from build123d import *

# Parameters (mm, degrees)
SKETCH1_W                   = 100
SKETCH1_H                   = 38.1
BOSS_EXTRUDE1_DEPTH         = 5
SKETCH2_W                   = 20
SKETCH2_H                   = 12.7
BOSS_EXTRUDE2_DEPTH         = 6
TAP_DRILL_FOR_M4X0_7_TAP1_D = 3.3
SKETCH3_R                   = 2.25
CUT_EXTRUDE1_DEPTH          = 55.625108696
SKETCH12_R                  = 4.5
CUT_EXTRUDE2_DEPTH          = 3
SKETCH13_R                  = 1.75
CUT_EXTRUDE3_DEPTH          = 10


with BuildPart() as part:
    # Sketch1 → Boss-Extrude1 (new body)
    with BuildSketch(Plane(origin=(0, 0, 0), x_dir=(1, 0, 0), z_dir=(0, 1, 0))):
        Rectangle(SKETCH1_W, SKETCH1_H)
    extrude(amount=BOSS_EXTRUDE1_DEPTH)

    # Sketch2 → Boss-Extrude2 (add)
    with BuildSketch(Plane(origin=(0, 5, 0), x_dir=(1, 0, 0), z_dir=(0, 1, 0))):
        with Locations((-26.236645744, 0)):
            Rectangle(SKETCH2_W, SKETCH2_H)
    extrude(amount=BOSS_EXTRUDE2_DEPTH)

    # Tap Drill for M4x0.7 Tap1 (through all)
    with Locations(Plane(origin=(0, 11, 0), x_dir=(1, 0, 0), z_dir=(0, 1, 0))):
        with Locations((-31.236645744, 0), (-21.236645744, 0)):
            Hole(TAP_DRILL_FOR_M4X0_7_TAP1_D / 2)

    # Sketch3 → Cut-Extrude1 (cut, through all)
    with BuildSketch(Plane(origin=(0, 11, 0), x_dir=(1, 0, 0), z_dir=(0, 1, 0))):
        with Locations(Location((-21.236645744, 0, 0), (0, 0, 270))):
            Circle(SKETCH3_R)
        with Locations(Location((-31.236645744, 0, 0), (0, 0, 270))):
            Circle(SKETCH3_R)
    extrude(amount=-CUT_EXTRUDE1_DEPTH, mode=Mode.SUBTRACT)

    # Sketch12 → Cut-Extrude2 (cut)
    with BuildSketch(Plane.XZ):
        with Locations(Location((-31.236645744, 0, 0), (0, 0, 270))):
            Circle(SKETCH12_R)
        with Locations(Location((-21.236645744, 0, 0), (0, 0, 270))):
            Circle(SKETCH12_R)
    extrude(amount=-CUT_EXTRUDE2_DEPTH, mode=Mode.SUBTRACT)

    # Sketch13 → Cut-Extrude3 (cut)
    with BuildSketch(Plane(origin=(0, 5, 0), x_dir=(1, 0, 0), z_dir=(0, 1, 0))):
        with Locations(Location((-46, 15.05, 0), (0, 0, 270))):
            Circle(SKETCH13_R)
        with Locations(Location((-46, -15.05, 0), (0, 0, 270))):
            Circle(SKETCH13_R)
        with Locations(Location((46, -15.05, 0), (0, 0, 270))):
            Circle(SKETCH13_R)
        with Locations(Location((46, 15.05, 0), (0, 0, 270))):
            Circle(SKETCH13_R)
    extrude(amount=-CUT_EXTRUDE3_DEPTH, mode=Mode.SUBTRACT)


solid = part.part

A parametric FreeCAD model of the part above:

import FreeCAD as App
import Part
import Sketcher

V = App.Vector

doc = App.newDocument("Part")
body = doc.addObject("PartDesign::Body", "Body")

# Sketch on XZ plane
sketch1 = body.newObject("Sketcher::SketchObject", "Sketch")
sketch1.AttachmentSupport = (doc.getObject("XZ_Plane"), [""])
sketch1.MapMode = "FlatFace"
sketch1.addGeometry(Part.LineSegment(V(-50, -19, 0), V(-50, 19, 0)), False)
sketch1.addGeometry(Part.LineSegment(V(-50, 19, 0), V(50, 19, 0)), False)
sketch1.addGeometry(Part.LineSegment(V(50, 19, 0), V(50, -19, 0)), False)
sketch1.addGeometry(Part.LineSegment(V(50, -19, 0), V(-50, -19, 0)), False)
sketch1.addConstraint(Sketcher.Constraint("Coincident", 0, 2, 1, 1))
sketch1.addConstraint(Sketcher.Constraint("Coincident", 1, 2, 2, 1))
sketch1.addConstraint(Sketcher.Constraint("Coincident", 2, 2, 3, 1))
sketch1.addConstraint(Sketcher.Constraint("Coincident", 3, 2, 0, 1))
sketch1.addConstraint(Sketcher.Constraint("Vertical", 0))
sketch1.addConstraint(Sketcher.Constraint("Horizontal", 1))
sketch1.addConstraint(Sketcher.Constraint("Vertical", 2))
sketch1.addConstraint(Sketcher.Constraint("Horizontal", 3))
sketch1.addConstraint(Sketcher.Constraint("Symmetric", 0, 2, 2, 2, -1, 1))
sketch1.addConstraint(Sketcher.Constraint("DistanceX", 1, 1, 1, 2, 100.0))
sketch1.addConstraint(Sketcher.Constraint("DistanceY", 0, 1, 0, 2, 38.1))
pad1 = body.newObject("PartDesign::Pad", "Pad")
pad1.Profile = sketch1
pad1.Length = 5
pad1.Reversed = True

# Sketch on XZ plane
sketch2 = body.newObject("Sketcher::SketchObject", "Sketch001")
sketch2.AttachmentSupport = (doc.getObject("XZ_Plane"), [""])
sketch2.MapMode = "FlatFace"
sketch2.AttachmentOffset = App.Placement(V(0, 0, -5), App.Rotation())
sketch2.addGeometry(Part.LineSegment(V(-36, -6, 0), V(-36, 6, 0)), False)
sketch2.addGeometry(Part.LineSegment(V(-36, 6, 0), V(-16, 6, 0)), False)
sketch2.addGeometry(Part.LineSegment(V(-16, 6, 0), V(-16, -6, 0)), False)
sketch2.addGeometry(Part.LineSegment(V(-16, -6, 0), V(-36, -6, 0)), False)
sketch2.addConstraint(Sketcher.Constraint("Coincident", 0, 2, 1, 1))
sketch2.addConstraint(Sketcher.Constraint("Coincident", 1, 2, 2, 1))
sketch2.addConstraint(Sketcher.Constraint("Coincident", 2, 2, 3, 1))
sketch2.addConstraint(Sketcher.Constraint("Coincident", 3, 2, 0, 1))
sketch2.addConstraint(Sketcher.Constraint("Vertical", 0))
sketch2.addConstraint(Sketcher.Constraint("Horizontal", 1))
sketch2.addConstraint(Sketcher.Constraint("Vertical", 2))
sketch2.addConstraint(Sketcher.Constraint("Horizontal", 3))
sketch2.addConstraint(Sketcher.Constraint("DistanceX", 1, 1, 1, 2, 20.0))
sketch2.addConstraint(Sketcher.Constraint("DistanceY", 0, 1, 0, 2, 12.7))
sketch2.addConstraint(Sketcher.Constraint("DistanceY", -1, 1, 0, 2, 6.35))
sketch2.addConstraint(Sketcher.Constraint("DistanceX", 0, 2, -1, 1, 36.236646))
pad2 = body.newObject("PartDesign::Pad", "Pad001")
pad2.Profile = sketch2
pad2.Length = 6
pad2.Reversed = True

# Sketch on XZ plane
sketch3 = body.newObject("Sketcher::SketchObject", "Sketch002")
sketch3.AttachmentSupport = (doc.getObject("XZ_Plane"), [""])
sketch3.MapMode = "FlatFace"
sketch3.AttachmentOffset = App.Placement(V(0, 0, -11), App.Rotation())
sketch3.addGeometry(Part.Circle(V(-31.2, 0, 0), V(0, 0, 1), 1.6), False)
sketch3.addGeometry(Part.Circle(V(-21.2, 0, 0), V(0, 0, 1), 1.6), False)
sketch3.addConstraint(Sketcher.Constraint("Equal", 0, 1))
sketch3.addConstraint(Sketcher.Constraint("PointOnObject", 0, 3, -1))
sketch3.addConstraint(Sketcher.Constraint("PointOnObject", 1, 3, -1))
sketch3.addConstraint(Sketcher.Constraint("Diameter", 0, 3.3))
sketch3.addConstraint(Sketcher.Constraint("DistanceX", 0, 3, 1, 3, 10.0))
sketch3.addConstraint(Sketcher.Constraint("DistanceX", 0, 3, -1, 1, 31.236646))
doc.recompute()
hole = body.newObject("PartDesign::Hole", "Hole")
hole.Profile = sketch3
hole.ThreadType = "None"
hole.Diameter = 3.3
hole.DepthType = "ThroughAll"
hole.Reversed = True

# Sketch on XZ plane
sketch4 = body.newObject("Sketcher::SketchObject", "Sketch003")
sketch4.AttachmentSupport = (doc.getObject("XZ_Plane"), [""])
sketch4.MapMode = "FlatFace"
sketch4.AttachmentOffset = App.Placement(V(0, 0, -11), App.Rotation())
sketch4.addGeometry(Part.Circle(V(-21.2, 0, 0), V(0, 0, 1), 2.2), False)
sketch4.addGeometry(Part.Circle(V(-31.2, 0, 0), V(0, 0, 1), 2.2), False)
sketch4.addConstraint(Sketcher.Constraint("Equal", 0, 1))
sketch4.addConstraint(Sketcher.Constraint("PointOnObject", 0, 3, -1))
sketch4.addConstraint(Sketcher.Constraint("PointOnObject", 1, 3, -1))
sketch4.addConstraint(Sketcher.Constraint("Diameter", 0, 4.5))
sketch4.addConstraint(Sketcher.Constraint("DistanceX", 1, 3, 0, 3, 10.0))
sketch4.addConstraint(Sketcher.Constraint("DistanceX", 0, 3, -1, 1, 21.236646))
pocket1 = body.newObject("PartDesign::Pocket", "Pocket")
pocket1.Profile = sketch4
pocket1.Type = "ThroughAll"
pocket1.Reversed = True

# Sketch on XZ plane
sketch5 = body.newObject("Sketcher::SketchObject", "Sketch004")
sketch5.AttachmentSupport = (doc.getObject("XZ_Plane"), [""])
sketch5.MapMode = "FlatFace"
sketch5.addGeometry(Part.Circle(V(-31.2, 0, 0), V(0, 0, 1), 4.5), False)
sketch5.addGeometry(Part.Circle(V(-21.2, 0, 0), V(0, 0, 1), 4.5), False)
sketch5.addConstraint(Sketcher.Constraint("Equal", 0, 1))
sketch5.addConstraint(Sketcher.Constraint("PointOnObject", 0, 3, -1))
sketch5.addConstraint(Sketcher.Constraint("PointOnObject", 1, 3, -1))
sketch5.addConstraint(Sketcher.Constraint("Diameter", 0, 9.0))
sketch5.addConstraint(Sketcher.Constraint("DistanceX", 0, 3, 1, 3, 10.0))
sketch5.addConstraint(Sketcher.Constraint("DistanceX", 0, 3, -1, 1, 31.236646))
pocket2 = body.newObject("PartDesign::Pocket", "Pocket001")
pocket2.Profile = sketch5
pocket2.Length = 3

# Sketch on XZ plane
sketch6 = body.newObject("Sketcher::SketchObject", "Sketch005")
sketch6.AttachmentSupport = (doc.getObject("XZ_Plane"), [""])
sketch6.MapMode = "FlatFace"
sketch6.AttachmentOffset = App.Placement(V(0, 0, -5), App.Rotation())
sketch6.addGeometry(Part.Circle(V(-46, -15.1, 0), V(0, 0, 1), 1.8), False)
sketch6.addGeometry(Part.Circle(V(-46, 15.1, 0), V(0, 0, 1), 1.8), False)
sketch6.addGeometry(Part.Circle(V(46, 15.1, 0), V(0, 0, 1), 1.8), False)
sketch6.addGeometry(Part.Circle(V(46, -15.1, 0), V(0, 0, 1), 1.8), False)
sketch6.addConstraint(Sketcher.Constraint("Equal", 0, 1))
sketch6.addConstraint(Sketcher.Constraint("Equal", 1, 2))
sketch6.addConstraint(Sketcher.Constraint("Equal", 2, 3))
sketch6.addConstraint(Sketcher.Constraint("Symmetric", 0, 3, 2, 3, -1, 1))
sketch6.addConstraint(Sketcher.Constraint("Symmetric", 1, 3, 3, 3, -1, 1))
sketch6.addConstraint(Sketcher.Constraint("Symmetric", 1, 3, 2, 3, -2))
sketch6.addConstraint(Sketcher.Constraint("Diameter", 0, 3.5))
sketch6.addConstraint(Sketcher.Constraint("DistanceX", 0, 3, -1, 1, 46.0))
sketch6.addConstraint(Sketcher.Constraint("DistanceY", 0, 3, 1, 3, 30.1))
pocket3 = body.newObject("PartDesign::Pocket", "Pocket002")
pocket3.Profile = sketch6
pocket3.Length = 10
pocket3.Reversed = True

doc.recompute()
